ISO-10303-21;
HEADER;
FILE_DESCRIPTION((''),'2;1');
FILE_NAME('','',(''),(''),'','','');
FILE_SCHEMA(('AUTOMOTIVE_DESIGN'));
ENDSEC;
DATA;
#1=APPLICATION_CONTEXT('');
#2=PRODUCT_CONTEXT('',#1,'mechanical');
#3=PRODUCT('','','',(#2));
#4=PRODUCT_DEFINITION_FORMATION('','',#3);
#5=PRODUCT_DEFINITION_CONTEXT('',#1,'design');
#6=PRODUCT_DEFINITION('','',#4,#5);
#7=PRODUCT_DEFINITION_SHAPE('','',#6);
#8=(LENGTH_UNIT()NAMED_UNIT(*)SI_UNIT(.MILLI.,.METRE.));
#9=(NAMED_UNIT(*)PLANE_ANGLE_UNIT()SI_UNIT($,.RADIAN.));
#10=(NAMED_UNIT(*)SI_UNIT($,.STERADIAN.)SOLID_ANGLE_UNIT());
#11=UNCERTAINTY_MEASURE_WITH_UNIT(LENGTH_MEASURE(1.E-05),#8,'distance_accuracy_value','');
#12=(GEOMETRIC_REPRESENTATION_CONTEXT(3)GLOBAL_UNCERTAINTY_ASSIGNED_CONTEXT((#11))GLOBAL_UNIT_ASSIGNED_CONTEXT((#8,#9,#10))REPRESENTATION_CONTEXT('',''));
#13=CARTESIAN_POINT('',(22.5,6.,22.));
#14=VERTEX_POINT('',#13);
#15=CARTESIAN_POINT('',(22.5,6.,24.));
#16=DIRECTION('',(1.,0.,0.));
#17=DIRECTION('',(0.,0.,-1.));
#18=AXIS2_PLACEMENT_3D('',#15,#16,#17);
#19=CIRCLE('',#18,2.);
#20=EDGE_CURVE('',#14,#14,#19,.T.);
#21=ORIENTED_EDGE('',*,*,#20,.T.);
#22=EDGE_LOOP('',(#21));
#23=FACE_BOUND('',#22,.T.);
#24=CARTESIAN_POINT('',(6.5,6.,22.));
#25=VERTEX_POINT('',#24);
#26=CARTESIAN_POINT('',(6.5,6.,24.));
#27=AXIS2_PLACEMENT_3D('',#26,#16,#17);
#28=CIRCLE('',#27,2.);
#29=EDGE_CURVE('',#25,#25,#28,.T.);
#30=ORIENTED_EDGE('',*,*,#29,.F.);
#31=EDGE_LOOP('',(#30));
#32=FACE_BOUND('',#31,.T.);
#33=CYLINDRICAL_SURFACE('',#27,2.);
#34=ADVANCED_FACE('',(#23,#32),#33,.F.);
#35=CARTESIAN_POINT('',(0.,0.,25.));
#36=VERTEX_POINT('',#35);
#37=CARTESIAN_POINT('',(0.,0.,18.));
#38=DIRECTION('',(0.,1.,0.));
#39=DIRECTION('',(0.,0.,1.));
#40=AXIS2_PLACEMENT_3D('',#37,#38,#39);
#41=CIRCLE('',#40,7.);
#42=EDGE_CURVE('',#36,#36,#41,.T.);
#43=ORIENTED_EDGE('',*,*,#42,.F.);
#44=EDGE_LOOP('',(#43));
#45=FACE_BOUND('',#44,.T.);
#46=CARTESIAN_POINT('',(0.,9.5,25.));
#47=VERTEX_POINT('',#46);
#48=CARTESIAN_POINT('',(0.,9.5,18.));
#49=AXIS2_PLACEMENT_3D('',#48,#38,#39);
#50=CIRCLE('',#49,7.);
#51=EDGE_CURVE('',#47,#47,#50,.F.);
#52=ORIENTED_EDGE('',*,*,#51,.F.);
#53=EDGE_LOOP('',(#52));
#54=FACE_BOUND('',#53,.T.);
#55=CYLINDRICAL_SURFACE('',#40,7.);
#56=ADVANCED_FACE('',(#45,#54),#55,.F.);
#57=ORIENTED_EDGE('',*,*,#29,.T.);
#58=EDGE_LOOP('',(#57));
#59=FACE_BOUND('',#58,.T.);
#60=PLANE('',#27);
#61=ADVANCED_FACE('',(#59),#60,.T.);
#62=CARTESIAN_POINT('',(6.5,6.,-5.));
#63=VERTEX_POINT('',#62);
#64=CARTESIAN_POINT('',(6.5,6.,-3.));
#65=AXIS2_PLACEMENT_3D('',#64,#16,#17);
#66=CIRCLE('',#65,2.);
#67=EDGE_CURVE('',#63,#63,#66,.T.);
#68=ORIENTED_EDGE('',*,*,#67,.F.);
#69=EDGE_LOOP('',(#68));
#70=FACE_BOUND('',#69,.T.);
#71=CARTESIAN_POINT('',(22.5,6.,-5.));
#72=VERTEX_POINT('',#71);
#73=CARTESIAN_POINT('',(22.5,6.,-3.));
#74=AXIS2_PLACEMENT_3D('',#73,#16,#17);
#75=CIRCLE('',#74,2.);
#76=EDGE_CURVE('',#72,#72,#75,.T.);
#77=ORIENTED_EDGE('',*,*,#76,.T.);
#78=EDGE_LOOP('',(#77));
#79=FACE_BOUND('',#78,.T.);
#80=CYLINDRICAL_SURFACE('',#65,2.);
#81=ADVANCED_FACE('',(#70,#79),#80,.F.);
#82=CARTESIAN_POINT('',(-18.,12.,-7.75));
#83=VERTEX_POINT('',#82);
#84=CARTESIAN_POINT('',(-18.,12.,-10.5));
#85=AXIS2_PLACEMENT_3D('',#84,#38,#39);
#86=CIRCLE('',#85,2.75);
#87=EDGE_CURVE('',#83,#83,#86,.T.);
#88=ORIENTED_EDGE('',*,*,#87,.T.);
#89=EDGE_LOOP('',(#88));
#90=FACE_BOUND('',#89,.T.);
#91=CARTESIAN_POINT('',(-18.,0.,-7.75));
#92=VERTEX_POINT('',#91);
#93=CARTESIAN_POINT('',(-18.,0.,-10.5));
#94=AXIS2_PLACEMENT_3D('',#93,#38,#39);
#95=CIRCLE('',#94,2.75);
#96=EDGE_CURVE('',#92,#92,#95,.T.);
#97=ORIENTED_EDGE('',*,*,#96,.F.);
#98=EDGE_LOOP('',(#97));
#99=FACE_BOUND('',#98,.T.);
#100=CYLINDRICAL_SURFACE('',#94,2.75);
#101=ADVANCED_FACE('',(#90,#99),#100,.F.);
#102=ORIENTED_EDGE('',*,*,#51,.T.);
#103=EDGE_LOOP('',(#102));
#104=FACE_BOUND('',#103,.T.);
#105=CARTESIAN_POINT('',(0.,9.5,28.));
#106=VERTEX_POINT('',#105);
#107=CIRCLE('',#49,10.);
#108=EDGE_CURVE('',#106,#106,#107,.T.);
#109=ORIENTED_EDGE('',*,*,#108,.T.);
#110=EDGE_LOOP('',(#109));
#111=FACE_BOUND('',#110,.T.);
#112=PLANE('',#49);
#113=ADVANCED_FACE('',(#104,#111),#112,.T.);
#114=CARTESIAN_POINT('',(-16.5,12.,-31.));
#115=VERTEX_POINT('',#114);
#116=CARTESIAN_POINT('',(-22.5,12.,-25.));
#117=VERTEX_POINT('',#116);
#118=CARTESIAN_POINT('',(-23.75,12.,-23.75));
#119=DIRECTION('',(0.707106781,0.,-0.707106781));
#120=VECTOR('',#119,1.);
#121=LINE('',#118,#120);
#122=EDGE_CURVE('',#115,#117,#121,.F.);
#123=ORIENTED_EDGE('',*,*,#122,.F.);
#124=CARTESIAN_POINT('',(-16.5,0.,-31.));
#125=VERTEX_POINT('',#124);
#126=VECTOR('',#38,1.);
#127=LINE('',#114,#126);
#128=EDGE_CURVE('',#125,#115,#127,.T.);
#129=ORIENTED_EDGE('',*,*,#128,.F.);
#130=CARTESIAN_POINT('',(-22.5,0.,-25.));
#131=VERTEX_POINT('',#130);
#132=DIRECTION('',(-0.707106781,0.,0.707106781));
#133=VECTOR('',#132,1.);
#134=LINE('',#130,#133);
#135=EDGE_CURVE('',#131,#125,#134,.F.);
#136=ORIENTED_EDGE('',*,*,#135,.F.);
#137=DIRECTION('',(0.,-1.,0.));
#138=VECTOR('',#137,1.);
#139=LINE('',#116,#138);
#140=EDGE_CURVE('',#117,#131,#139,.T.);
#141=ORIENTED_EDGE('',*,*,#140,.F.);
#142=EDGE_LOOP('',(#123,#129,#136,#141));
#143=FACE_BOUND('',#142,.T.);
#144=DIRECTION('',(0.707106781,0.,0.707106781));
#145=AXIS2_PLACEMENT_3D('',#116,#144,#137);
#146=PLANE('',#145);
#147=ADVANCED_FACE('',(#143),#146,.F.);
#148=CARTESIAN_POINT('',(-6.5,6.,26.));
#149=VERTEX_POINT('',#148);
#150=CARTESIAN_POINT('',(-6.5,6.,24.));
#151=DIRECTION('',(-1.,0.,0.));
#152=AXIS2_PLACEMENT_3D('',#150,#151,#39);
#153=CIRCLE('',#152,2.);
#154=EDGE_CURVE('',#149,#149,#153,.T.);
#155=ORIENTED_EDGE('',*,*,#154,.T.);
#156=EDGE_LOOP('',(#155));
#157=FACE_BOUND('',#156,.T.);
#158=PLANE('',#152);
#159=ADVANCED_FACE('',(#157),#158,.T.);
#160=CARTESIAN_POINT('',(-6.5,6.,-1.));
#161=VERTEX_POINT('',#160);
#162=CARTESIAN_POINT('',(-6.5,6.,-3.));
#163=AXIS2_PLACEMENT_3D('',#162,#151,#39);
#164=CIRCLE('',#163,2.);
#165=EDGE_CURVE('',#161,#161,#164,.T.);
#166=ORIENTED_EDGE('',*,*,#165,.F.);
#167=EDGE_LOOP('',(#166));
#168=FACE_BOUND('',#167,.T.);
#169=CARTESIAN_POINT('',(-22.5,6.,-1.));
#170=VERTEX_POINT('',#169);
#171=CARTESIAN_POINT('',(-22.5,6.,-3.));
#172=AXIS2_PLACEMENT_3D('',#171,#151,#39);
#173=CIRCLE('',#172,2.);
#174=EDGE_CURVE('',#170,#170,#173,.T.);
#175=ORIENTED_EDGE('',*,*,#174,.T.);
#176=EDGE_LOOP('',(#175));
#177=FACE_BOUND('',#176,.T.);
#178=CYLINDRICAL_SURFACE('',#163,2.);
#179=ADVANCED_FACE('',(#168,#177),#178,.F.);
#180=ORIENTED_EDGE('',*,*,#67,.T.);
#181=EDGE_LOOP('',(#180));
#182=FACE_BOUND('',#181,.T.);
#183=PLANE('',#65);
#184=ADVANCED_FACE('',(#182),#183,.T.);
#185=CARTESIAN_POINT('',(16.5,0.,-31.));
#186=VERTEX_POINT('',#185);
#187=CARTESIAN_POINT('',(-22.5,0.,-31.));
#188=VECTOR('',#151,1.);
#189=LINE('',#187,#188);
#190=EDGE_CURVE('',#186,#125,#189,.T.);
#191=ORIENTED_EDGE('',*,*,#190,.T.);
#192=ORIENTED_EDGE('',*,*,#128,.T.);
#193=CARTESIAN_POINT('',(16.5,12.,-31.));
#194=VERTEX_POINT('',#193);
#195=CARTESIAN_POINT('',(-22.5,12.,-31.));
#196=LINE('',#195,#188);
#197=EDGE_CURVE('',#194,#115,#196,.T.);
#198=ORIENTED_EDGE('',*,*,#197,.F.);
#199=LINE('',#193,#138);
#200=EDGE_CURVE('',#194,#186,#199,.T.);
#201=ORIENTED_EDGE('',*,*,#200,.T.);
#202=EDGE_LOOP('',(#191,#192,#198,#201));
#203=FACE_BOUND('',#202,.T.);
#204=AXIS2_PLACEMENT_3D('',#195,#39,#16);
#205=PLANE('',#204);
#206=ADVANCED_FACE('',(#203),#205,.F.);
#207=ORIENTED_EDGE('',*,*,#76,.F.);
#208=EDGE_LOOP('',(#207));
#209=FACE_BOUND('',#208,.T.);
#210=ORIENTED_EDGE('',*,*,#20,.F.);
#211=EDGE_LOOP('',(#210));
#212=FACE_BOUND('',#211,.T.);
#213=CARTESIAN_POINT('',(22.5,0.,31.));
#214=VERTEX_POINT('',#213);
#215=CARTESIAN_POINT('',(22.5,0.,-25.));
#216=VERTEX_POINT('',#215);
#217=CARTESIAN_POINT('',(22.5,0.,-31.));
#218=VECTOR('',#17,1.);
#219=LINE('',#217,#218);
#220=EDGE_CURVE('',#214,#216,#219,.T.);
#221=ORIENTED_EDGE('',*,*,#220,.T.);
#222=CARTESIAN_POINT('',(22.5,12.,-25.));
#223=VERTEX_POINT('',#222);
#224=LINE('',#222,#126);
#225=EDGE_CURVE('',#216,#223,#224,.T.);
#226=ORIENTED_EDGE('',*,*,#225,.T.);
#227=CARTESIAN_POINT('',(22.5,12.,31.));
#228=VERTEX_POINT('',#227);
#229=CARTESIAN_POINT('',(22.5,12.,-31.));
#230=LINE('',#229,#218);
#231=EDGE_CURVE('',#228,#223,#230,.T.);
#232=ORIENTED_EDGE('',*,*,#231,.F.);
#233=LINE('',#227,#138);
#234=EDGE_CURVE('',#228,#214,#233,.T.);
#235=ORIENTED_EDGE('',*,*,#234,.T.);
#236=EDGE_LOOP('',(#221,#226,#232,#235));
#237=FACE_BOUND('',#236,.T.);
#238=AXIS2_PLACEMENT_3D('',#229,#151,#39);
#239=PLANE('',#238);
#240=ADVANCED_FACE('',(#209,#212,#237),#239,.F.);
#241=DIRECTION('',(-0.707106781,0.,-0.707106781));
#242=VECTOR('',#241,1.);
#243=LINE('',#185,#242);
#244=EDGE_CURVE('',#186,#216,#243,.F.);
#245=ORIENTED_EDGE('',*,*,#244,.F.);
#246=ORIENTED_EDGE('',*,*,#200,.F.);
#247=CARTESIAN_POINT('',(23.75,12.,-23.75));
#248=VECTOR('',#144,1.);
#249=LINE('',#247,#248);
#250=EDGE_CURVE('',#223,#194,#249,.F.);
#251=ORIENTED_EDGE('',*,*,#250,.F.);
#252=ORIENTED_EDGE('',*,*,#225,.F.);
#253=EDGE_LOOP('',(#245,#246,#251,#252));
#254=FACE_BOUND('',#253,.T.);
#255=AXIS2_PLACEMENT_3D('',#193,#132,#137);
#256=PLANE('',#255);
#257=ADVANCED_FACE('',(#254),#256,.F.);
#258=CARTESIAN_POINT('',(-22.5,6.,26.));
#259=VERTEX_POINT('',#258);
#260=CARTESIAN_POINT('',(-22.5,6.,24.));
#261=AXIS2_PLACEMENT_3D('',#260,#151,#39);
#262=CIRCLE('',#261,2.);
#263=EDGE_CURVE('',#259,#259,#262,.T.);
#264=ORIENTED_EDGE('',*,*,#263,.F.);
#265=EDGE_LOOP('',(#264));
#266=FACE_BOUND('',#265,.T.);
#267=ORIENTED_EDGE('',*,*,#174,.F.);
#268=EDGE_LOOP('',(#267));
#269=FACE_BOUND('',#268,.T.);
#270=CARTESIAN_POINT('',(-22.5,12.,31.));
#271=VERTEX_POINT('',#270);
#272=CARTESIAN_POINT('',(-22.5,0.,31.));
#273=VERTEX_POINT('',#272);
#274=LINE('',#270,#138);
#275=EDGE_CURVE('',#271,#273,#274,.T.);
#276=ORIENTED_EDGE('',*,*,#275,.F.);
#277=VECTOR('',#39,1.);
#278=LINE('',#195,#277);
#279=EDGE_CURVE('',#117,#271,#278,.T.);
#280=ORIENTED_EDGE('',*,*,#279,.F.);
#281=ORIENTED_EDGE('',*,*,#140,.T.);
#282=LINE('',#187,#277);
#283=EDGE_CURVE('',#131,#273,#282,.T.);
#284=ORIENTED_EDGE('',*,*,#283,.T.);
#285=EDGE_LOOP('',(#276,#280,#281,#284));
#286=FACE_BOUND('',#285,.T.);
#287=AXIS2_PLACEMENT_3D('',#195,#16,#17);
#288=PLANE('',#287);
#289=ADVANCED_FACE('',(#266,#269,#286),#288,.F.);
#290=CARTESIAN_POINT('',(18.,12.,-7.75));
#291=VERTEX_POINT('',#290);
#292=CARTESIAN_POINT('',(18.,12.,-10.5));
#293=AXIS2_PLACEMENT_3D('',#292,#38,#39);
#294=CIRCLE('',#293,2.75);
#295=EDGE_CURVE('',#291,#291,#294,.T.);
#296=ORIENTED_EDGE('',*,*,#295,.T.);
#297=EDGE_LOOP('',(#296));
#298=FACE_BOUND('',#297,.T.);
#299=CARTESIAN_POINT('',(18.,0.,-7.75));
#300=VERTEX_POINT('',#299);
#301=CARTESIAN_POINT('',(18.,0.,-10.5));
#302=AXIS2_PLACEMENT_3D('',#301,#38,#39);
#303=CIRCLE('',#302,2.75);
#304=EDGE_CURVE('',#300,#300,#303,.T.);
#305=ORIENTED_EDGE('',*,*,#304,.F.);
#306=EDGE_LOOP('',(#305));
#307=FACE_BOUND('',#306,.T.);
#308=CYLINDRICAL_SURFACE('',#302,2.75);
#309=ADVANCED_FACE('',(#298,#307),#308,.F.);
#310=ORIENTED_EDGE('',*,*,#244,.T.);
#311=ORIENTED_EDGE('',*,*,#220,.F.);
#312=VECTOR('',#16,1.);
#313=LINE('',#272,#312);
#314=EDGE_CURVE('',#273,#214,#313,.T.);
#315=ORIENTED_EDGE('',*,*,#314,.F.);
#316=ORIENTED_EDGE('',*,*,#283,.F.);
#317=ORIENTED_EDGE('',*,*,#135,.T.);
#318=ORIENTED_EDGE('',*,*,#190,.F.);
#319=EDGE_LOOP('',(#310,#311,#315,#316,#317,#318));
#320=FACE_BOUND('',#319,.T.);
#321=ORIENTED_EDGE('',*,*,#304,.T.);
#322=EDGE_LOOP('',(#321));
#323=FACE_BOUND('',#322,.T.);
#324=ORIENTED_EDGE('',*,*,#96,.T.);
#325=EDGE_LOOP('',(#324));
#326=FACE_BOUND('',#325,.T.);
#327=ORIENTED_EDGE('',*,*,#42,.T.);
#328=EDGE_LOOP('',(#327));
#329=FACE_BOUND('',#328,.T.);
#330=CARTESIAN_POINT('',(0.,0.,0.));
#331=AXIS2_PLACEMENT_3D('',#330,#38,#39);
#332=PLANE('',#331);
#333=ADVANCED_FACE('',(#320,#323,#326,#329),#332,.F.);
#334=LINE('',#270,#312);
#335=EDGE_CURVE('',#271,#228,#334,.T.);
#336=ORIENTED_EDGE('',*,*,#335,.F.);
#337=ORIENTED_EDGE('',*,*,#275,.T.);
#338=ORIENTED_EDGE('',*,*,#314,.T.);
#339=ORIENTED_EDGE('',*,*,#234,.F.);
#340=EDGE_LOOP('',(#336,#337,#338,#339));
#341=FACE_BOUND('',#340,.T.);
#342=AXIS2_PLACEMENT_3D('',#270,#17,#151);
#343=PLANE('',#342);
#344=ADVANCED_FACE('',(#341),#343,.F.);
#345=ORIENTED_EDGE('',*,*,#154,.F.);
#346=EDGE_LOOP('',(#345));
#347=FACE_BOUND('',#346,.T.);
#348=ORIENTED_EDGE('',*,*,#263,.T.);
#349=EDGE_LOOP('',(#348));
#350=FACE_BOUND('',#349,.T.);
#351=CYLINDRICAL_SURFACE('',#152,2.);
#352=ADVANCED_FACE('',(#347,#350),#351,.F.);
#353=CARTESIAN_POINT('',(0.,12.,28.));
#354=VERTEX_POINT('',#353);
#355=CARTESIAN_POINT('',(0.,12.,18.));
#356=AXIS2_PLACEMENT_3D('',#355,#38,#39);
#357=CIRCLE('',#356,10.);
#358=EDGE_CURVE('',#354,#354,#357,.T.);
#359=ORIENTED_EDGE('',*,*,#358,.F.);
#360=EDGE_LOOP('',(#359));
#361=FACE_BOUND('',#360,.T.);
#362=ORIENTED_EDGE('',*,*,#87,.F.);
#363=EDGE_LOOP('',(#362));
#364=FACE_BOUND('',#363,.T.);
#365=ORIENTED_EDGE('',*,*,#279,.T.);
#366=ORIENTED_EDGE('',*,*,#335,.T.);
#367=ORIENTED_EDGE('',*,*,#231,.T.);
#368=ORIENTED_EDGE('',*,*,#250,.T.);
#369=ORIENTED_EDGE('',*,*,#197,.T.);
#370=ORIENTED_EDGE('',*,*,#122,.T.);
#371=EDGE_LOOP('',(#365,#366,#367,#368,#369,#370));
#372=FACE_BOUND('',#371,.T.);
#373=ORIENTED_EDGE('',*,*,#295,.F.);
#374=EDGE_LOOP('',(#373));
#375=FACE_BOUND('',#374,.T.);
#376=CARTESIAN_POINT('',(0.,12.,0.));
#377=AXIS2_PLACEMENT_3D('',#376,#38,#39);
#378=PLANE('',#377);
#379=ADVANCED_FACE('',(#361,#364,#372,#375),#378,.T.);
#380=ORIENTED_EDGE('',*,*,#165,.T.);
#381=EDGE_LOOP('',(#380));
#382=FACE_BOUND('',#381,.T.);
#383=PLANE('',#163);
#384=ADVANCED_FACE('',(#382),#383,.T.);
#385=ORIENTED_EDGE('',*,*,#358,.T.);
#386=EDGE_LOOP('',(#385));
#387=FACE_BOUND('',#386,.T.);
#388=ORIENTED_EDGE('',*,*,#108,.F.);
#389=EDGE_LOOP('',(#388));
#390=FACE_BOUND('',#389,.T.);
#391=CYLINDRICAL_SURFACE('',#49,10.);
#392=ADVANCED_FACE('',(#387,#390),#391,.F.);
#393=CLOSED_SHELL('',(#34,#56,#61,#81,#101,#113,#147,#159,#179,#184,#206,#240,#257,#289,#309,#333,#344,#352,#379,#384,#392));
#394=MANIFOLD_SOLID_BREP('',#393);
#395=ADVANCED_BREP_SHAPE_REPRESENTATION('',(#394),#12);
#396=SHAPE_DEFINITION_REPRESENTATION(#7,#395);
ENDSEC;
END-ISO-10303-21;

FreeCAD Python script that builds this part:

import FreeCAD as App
import Part
import Sketcher

V = App.Vector


def edges_at(feature, points):
    """Names of the edges that pass closest to the given points."""
    edges = feature.Shape.Edges
    near = lambda p: min(range(len(edges)), key=lambda i: edges[i].distToShape(Part.Vertex(*p))[0])
    return sorted({f"Edge{near(p) + 1}" for p in points})

doc = App.newDocument("Part")
params = doc.addObject("Spreadsheet::Sheet", "Params")
for row, (alias, value) in enumerate([
    ("sketch1_width", "45 mm"),
    ("sketch1_height", "62 mm"),
    ("pad1_length", "12 mm"),
    ("sketch2_diameter", "14 mm"),
    ("sketch2_diameter2", "5.5 mm"),
    ("pocket1_length", "12 mm"),
    ("sketch3_diameter", "20 mm"),
    ("pocket2_length", "2.5 mm"),
    ("sketch4_diameter", "4 mm"),
    ("pocket3_length", "16 mm"),
    ("sketch5_diameter", "4 mm"),
    ("pocket4_length", "16 mm"),
    ("chamfer_size", "6 mm"),
], start=1):
    params.set(f"A{row}", alias)
    params.set(f"B{row}", "=" + value)
    params.setAlias(f"B{row}", alias)

body = doc.addObject("PartDesign::Body", "Body")

sketch1 = body.newObject("Sketcher::SketchObject", "Sketch")
sketch1.AttachmentSupport = (doc.getObject("XZ_Plane"), [""])
sketch1.MapMode = "FlatFace"
sketch1.addGeometry([
    Part.LineSegment(V(-22.5, -31, 0), V(-22.5, 31, 0)),
    Part.LineSegment(V(-22.5, 31, 0), V(22.5, 31, 0)),
    Part.LineSegment(V(22.5, 31, 0), V(22.5, -31, 0)),
    Part.LineSegment(V(22.5, -31, 0), V(-22.5, -31, 0)),
], False)
sketch1.addConstraint([
    Sketcher.Constraint("Coincident", 0, 2, 1, 1),
    Sketcher.Constraint("Coincident", 1, 2, 2, 1),
    Sketcher.Constraint("Coincident", 2, 2, 3, 1),
    Sketcher.Constraint("Coincident", 3, 2, 0, 1),
    Sketcher.Constraint("Vertical", 0),
    Sketcher.Constraint("Horizontal", 1),
    Sketcher.Constraint("Vertical", 2),
    Sketcher.Constraint("Horizontal", 3),
    Sketcher.Constraint("Symmetric", 0, 2, 2, 2, -1, 1),
    Sketcher.Constraint("DistanceX", 1, 1, 1, 2, 45.0),
    Sketcher.Constraint("DistanceY", 0, 1, 0, 2, 62.0),
])
sketch1.setExpression("Constraints[9]", "Params.sketch1_width")
sketch1.setExpression("Constraints[10]", "Params.sketch1_height")
pad1 = body.newObject("PartDesign::Pad", "Pad")
pad1.Profile = sketch1
pad1.setExpression("Length", "Params.pad1_length")
pad1.Reversed = True

sketch2 = body.newObject("Sketcher::SketchObject", "Sketch001")
sketch2.AttachmentSupport = (doc.getObject("XZ_Plane"), [""])
sketch2.MapMode = "FlatFace"
sketch2.AttachmentOffset = App.Placement(V(0, 0, -12), App.Rotation())
sketch2.addGeometry([
    Part.Circle(V(0, 18, 0), V(0, 0, 1), 7),
    Part.Circle(V(-18, -10.5, 0), V(0, 0, 1), 2.75),
    Part.Circle(V(18, -10.5, 0), V(0, 0, 1), 2.75),
], False)
sketch2.addConstraint([
    Sketcher.Constraint("Equal", 1, 2),
    Sketcher.Constraint("Symmetric", 1, 3, 2, 3, -2),
    Sketcher.Constraint("PointOnObject", 0, 3, -2),
    Sketcher.Constraint("Diameter", 0, 14.0),
    Sketcher.Constraint("Diameter", 1, 5.5),
    Sketcher.Constraint("DistanceY", -1, 1, 0, 3, 18.0),
    Sketcher.Constraint("DistanceX", 1, 3, -1, 1, 18.0),
    Sketcher.Constraint("DistanceY", 1, 3, -1, 1, 10.5),
])
sketch2.setExpression("Constraints[3]", "Params.sketch2_diameter")
sketch2.setExpression("Constraints[4]", "Params.sketch2_diameter2")
pocket1 = body.newObject("PartDesign::Pocket", "Pocket")
pocket1.Profile = sketch2
pocket1.setExpression("Length", "Params.pocket1_length")
pocket1.Reversed = True

sketch3 = body.newObject("Sketcher::SketchObject", "Sketch002")
sketch3.AttachmentSupport = (doc.getObject("XZ_Plane"), [""])
sketch3.MapMode = "FlatFace"
sketch3.AttachmentOffset = App.Placement(V(0, 0, -12), App.Rotation())
sketch3.addGeometry(Part.Circle(V(0, 18, 0), V(0, 0, 1), 10), False)
sketch3.addConstraint([
    Sketcher.Constraint("PointOnObject", 0, 3, -2),
    Sketcher.Constraint("Diameter", 0, 20.0),
    Sketcher.Constraint("DistanceY", -1, 1, 0, 3, 18.0),
])
sketch3.setExpression("Constraints[1]", "Params.sketch3_diameter")
pocket2 = body.newObject("PartDesign::Pocket", "Pocket001")
pocket2.Profile = sketch3
pocket2.setExpression("Length", "Params.pocket2_length")
pocket2.Reversed = True

sketch4 = body.newObject("Sketcher::SketchObject", "Sketch003")
sketch4.AttachmentSupport = (doc.getObject("YZ_Plane"), [""])
sketch4.MapMode = "FlatFace"
sketch4.AttachmentOffset = App.Placement(V(0, 0, -22.5), App.Rotation())
sketch4.addGeometry([
    Part.Circle(V(6, 24, 0), V(0, 0, 1), 2),
    Part.Circle(V(6, -3, 0), V(0, 0, 1), 2),
], False)
sketch4.addConstraint([
    Sketcher.Constraint("Equal", 0, 1),
    Sketcher.Constraint("Vertical", 0, 3, 1, 3),
    Sketcher.Constraint("Diameter", 0, 4.0),
    Sketcher.Constraint("DistanceX", -1, 1, 0, 3, 6.0),
    Sketcher.Constraint("DistanceY", -1, 1, 0, 3, 24.0),
    Sketcher.Constraint("DistanceY", 1, 3, -1, 1, 3.0),
])
sketch4.setExpression("Constraints[2]", "Params.sketch4_diameter")
pocket3 = body.newObject("PartDesign::Pocket", "Pocket002")
pocket3.Profile = sketch4
pocket3.setExpression("Length", "Params.pocket3_length")
pocket3.Reversed = True

sketch5 = body.newObject("Sketcher::SketchObject", "Sketch004")
sketch5.AttachmentSupport = (doc.getObject("YZ_Plane"), [""])
sketch5.MapMode = "FlatFace"
sketch5.AttachmentOffset = App.Placement(V(0, 0, 22.5), App.Rotation())
sketch5.addGeometry([
    Part.Circle(V(6, 24, 0), V(0, 0, 1), 2),
    Part.Circle(V(6, -3, 0), V(0, 0, 1), 2),
], False)
sketch5.addConstraint([
    Sketcher.Constraint("Equal", 0, 1),
    Sketcher.Constraint("Vertical", 0, 3, 1, 3),
    Sketcher.Constraint("Diameter", 0, 4.0),
    Sketcher.Constraint("DistanceX", -1, 1, 0, 3, 6.0),
    Sketcher.Constraint("DistanceY", -1, 1, 0, 3, 24.0),
    Sketcher.Constraint("DistanceY", 1, 3, -1, 1, 3.0),
])
sketch5.setExpression("Constraints[2]", "Params.sketch5_diameter")
pocket4 = body.newObject("PartDesign::Pocket", "Pocket003")
pocket4.Profile = sketch5
pocket4.setExpression("Length", "Params.pocket4_length")
doc.recompute()

chamfer = body.newObject("PartDesign::Chamfer", "Chamfer")
chamfer.Base = (pocket4, edges_at(pocket4, [(-22.5, 6, -31), (22.5, 6, -31)]))
chamfer.setExpression("Size", "Params.chamfer_size")

doc.recompute()
